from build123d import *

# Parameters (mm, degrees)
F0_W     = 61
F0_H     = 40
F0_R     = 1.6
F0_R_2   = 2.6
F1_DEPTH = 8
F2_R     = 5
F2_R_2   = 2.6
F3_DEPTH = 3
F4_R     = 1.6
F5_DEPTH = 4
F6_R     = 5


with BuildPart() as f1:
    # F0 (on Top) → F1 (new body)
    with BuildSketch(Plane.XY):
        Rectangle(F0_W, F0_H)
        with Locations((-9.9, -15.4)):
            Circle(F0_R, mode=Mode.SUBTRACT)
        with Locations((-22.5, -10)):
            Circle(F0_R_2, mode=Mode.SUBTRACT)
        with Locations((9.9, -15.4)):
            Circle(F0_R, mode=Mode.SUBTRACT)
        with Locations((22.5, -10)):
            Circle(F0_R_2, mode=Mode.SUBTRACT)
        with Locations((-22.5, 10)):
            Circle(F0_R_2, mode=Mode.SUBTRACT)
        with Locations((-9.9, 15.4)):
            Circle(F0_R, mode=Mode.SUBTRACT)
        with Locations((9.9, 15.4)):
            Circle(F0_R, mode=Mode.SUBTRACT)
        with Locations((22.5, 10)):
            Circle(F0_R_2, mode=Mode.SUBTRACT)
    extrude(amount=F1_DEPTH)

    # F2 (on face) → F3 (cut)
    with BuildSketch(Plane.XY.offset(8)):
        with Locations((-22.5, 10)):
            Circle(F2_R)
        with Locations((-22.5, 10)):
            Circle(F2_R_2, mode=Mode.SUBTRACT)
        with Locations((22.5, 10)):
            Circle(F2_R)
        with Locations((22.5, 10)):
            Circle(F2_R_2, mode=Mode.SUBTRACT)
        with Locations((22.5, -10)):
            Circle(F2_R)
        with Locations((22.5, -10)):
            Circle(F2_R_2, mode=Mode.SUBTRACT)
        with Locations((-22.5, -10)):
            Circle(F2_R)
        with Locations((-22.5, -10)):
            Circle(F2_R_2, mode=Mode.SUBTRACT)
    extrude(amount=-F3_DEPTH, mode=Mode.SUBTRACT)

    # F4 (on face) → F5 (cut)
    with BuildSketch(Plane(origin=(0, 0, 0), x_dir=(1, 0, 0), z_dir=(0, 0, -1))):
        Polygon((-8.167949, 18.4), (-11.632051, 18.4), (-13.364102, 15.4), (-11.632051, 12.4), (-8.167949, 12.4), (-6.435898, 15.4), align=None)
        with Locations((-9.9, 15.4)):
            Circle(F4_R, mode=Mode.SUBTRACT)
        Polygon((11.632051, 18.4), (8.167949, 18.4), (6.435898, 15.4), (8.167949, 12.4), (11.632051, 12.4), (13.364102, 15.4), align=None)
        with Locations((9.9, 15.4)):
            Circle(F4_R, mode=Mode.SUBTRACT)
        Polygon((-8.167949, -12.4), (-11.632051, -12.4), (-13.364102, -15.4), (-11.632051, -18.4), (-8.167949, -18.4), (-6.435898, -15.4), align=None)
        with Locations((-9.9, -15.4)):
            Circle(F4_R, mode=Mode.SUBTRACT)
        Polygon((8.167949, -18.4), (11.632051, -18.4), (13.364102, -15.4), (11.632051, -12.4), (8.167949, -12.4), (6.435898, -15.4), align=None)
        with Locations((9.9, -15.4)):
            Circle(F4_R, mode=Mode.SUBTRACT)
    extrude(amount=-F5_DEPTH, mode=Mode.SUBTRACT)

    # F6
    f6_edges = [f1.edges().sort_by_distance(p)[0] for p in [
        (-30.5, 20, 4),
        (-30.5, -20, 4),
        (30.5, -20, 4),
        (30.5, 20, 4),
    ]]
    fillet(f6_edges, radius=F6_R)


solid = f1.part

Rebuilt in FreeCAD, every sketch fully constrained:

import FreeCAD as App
import Part
import Sketcher

V = App.Vector
Q = App.Units.Quantity


def edges_at(feature, points):
    """Names of the edges that pass closest to the given points."""
    edges = feature.Shape.Edges
    near = lambda p: min(range(len(edges)), key=lambda i: edges[i].distToShape(Part.Vertex(*p))[0])
    return sorted({f"Edge{near(p) + 1}" for p in points})


def add_polygon(sketch, points):
    """Adds a closed chain of lines whose ends are joined by coincident constraints."""
    first, n = sketch.GeometryCount, len(points)
    for a, b in zip(points, points[1:] + points[:1]):
        sketch.addGeometry(Part.LineSegment(App.Vector(*a, 0), App.Vector(*b, 0)), False)
    for i in range(n):
        sketch.addConstraint(Sketcher.Constraint("Coincident", first + i, 2, first + (i + 1) % n, 1))

doc = App.newDocument("Part")
body = doc.addObject("PartDesign::Body", "Body")

# Sketch on XY plane
sketch1 = body.newObject("Sketcher::SketchObject", "Sketch")
sketch1.AttachmentSupport = (doc.getObject("XY_Plane"), [""])
sketch1.MapMode = "FlatFace"
add_polygon(sketch1, [(-30.5, 20), (-30.5, -20), (30.5, -20), (30.5, 20)])  # lines 0-3
sketch1.addGeometry(Part.Circle(V(-22.5, -10, 0), V(0, 0, 1), 2.6), False)  # 4
sketch1.addGeometry(Part.Circle(V(-9.9, -15.4, 0), V(0, 0, 1), 1.6), False)  # 5
sketch1.addGeometry(Part.Circle(V(9.9, -15.4, 0), V(0, 0, 1), 1.6), False)  # 6
sketch1.addGeometry(Part.Circle(V(22.5, -10, 0), V(0, 0, 1), 2.6), False)  # 7
sketch1.addGeometry(Part.Circle(V(-22.5, 10, 0), V(0, 0, 1), 2.6), False)  # 8
sketch1.addGeometry(Part.Circle(V(-9.9, 15.4, 0), V(0, 0, 1), 1.6), False)  # 9
sketch1.addGeometry(Part.Circle(V(9.9, 15.4, 0), V(0, 0, 1), 1.6), False)  # 10
sketch1.addGeometry(Part.Circle(V(22.5, 10, 0), V(0, 0, 1), 2.6), False)  # 11
sketch1.addConstraint(Sketcher.Constraint("Vertical", 0))
sketch1.addConstraint(Sketcher.Constraint("Horizontal", 1))
sketch1.addConstraint(Sketcher.Constraint("Vertical", 2))
sketch1.addConstraint(Sketcher.Constraint("Horizontal", 3))
sketch1.addConstraint(Sketcher.Constraint("Equal", 5, 6))
sketch1.addConstraint(Sketcher.Constraint("Equal", 4, 7))
sketch1.addConstraint(Sketcher.Constraint("Equal", 7, 8))
sketch1.addConstraint(Sketcher.Constraint("Equal", 6, 9))
sketch1.addConstraint(Sketcher.Constraint("Equal", 9, 10))
sketch1.addConstraint(Sketcher.Constraint("Equal", 8, 11))
sketch1.addConstraint(Sketcher.Constraint("Symmetric", 7, 3, 8, 3, -1, 1))
sketch1.addConstraint(Sketcher.Constraint("Symmetric", 6, 3, 9, 3, -1, 1))
sketch1.addConstraint(Sketcher.Constraint("Symmetric", 5, 3, 10, 3, -1, 1))
sketch1.addConstraint(Sketcher.Constraint("Symmetric", 4, 3, 11, 3, -1, 1))
sketch1.addConstraint(Sketcher.Constraint("Symmetric", 0, 2, 2, 2, -1, 1))
sketch1.addConstraint(Sketcher.Constraint("Symmetric", 5, 3, 6, 3, -2))
sketch1.addConstraint(Sketcher.Constraint("Symmetric", 4, 3, 7, 3, -2))
sketch1.addConstraint(Sketcher.Constraint("Diameter", 4, 5.2))
sketch1.addConstraint(Sketcher.Constraint("Diameter", 5, 3.2))
sketch1.addConstraint(Sketcher.Constraint("DistanceX", 1, 1, 1, 2, 61.0))
sketch1.addConstraint(Sketcher.Constraint("DistanceY", 0, 2, 0, 1, 40.0))
sketch1.addConstraint(Sketcher.Constraint("DistanceY", 4, 3, -1, 1, 10.0))
sketch1.addConstraint(Sketcher.Constraint("DistanceX", 4, 3, 7, 3, 45.0))
sketch1.addConstraint(Sketcher.Constraint("DistanceX", 5, 3, -1, 1, 9.9))
sketch1.addConstraint(Sketcher.Constraint("DistanceY", 5, 3, -1, 1, 15.4))
pad1 = body.newObject("PartDesign::Pad", "Pad")
pad1.Profile = sketch1
pad1.Length = 8

# Sketch on XY plane
sketch2 = body.newObject("Sketcher::SketchObject", "Sketch001")
sketch2.AttachmentSupport = (doc.getObject("XY_Plane"), [""])
sketch2.MapMode = "FlatFace"
sketch2.AttachmentOffset = App.Placement(V(0, 0, 8), App.Rotation())
sketch2.addGeometry(Part.Circle(V(-22.5, 10, 0), V(0, 0, 1), 5), False)
sketch2.addGeometry(Part.Circle(V(-22.5, 10, 0), V(0, 0, 1), 2.6), False)
sketch2.addGeometry(Part.Circle(V(22.5, 10, 0), V(0, 0, 1), 5), False)
sketch2.addGeometry(Part.Circle(V(22.5, 10, 0), V(0, 0, 1), 2.6), False)
sketch2.addGeometry(Part.Circle(V(22.5, -10, 0), V(0, 0, 1), 5), False)
sketch2.addGeometry(Part.Circle(V(22.5, -10, 0), V(0, 0, 1), 2.6), False)
sketch2.addGeometry(Part.Circle(V(-22.5, -10, 0), V(0, 0, 1), 5), False)
sketch2.addGeometry(Part.Circle(V(-22.5, -10, 0), V(0, 0, 1), 2.6), False)
sketch2.addConstraint(Sketcher.Constraint("Coincident", 1, 3, 0, 3))
sketch2.addConstraint(Sketcher.Constraint("Coincident", 3, 3, 2, 3))
sketch2.addConstraint(Sketcher.Constraint("Coincident", 5, 3, 4, 3))
sketch2.addConstraint(Sketcher.Constraint("Coincident", 7, 3, 6, 3))
sketch2.addConstraint(Sketcher.Constraint("Equal", 0, 2))
sketch2.addConstraint(Sketcher.Constraint("Equal", 1, 3))
sketch2.addConstraint(Sketcher.Constraint("Equal", 2, 4))
sketch2.addConstraint(Sketcher.Constraint("Equal", 3, 5))
sketch2.addConstraint(Sketcher.Constraint("Equal", 4, 6))
sketch2.addConstraint(Sketcher.Constraint("Equal", 5, 7))
sketch2.addConstraint(Sketcher.Constraint("Symmetric", 0, 3, 4, 3, -1, 1))
sketch2.addConstraint(Sketcher.Constraint("Symmetric", 2, 3, 6, 3, -1, 1))
sketch2.addConstraint(Sketcher.Constraint("Symmetric", 0, 3, 2, 3, -2))
sketch2.addConstraint(Sketcher.Constraint("Diameter", 0, 10.0))
sketch2.addConstraint(Sketcher.Constraint("Diameter", 1, 5.2))
sketch2.addConstraint(Sketcher.Constraint("DistanceY", -1, 1, 0, 3, 10.0))
sketch2.addConstraint(Sketcher.Constraint("DistanceX", 0, 3, 2, 3, 45.0))
pocket1 = body.newObject("PartDesign::Pocket", "Pocket")
pocket1.Profile = sketch2
pocket1.Length = 3

# Sketch on XY plane
sketch3 = body.newObject("Sketcher::SketchObject", "Sketch002")
sketch3.AttachmentSupport = (doc.getObject("XY_Plane"), [""])
sketch3.MapMode = "FlatFace"
add_polygon(sketch3, [(-8.2, -18.4), (-11.6, -18.4), (-13.4, -15.4), (-11.6, -12.4), (-8.2, -12.4), (-6.4, -15.4)])  # lines 0-5
sketch3.addGeometry(Part.Circle(V(-9.9, -15.4, 0), V(0, 0, 1), 1.6), False)  # 6
add_polygon(sketch3, [(11.6, -18.4), (8.2, -18.4), (6.4, -15.4), (8.2, -12.4), (11.6, -12.4), (13.4, -15.4)])  # lines 7-12
sketch3.addGeometry(Part.Circle(V(9.9, -15.4, 0), V(0, 0, 1), 1.6), False)  # 13
add_polygon(sketch3, [(-8.2, 12.4), (-11.6, 12.4), (-13.4, 15.4), (-11.6, 18.4), (-8.2, 18.4), (-6.4, 15.4)])  # lines 14-19
sketch3.addGeometry(Part.Circle(V(-9.9, 15.4, 0), V(0, 0, 1), 1.6), False)  # 20
add_polygon(sketch3, [(8.2, 18.4), (11.6, 18.4), (13.4, 15.4), (11.6, 12.4), (8.2, 12.4), (6.4, 15.4)])  # lines 21-26
sketch3.addGeometry(Part.Circle(V(9.9, 15.4, 0), V(0, 0, 1), 1.6), False)  # 27
sketch3.addConstraint(Sketcher.Constraint("Horizontal", 0))
sketch3.addConstraint(Sketcher.Constraint("Horizontal", 3))
sketch3.addConstraint(Sketcher.Constraint("Horizontal", 7))
sketch3.addConstraint(Sketcher.Constraint("Horizontal", 10))
sketch3.addConstraint(Sketcher.Constraint("Horizontal", 14))
sketch3.addConstraint(Sketcher.Constraint("Horizontal", 17))
sketch3.addConstraint(Sketcher.Constraint("Horizontal", 21))
sketch3.addConstraint(Sketcher.Constraint("Horizontal", 24))
sketch3.addConstraint(Sketcher.Constraint("Equal", 6, 13))
sketch3.addConstraint(Sketcher.Constraint("Equal", 13, 20))
sketch3.addConstraint(Sketcher.Constraint("Equal", 20, 27))
sketch3.addConstraint(Sketcher.Constraint("Symmetric", 13, 3, 20, 3, -1, 1))
sketch3.addConstraint(Sketcher.Constraint("Symmetric", 6, 3, 27, 3, -1, 1))
sketch3.addConstraint(Sketcher.Constraint("Symmetric", 10, 2, 14, 2, -1, 1))
sketch3.addConstraint(Sketcher.Constraint("Symmetric", 11, 2, 15, 2, -1, 1))
sketch3.addConstraint(Sketcher.Constraint("Symmetric", 12, 2, 16, 2, -1, 1))
sketch3.addConstraint(Sketcher.Constraint("Symmetric", 8, 2, 18, 2, -1, 1))
sketch3.addConstraint(Sketcher.Constraint("Symmetric", 0, 2, 21, 2, -1, 1))
sketch3.addConstraint(Sketcher.Constraint("Symmetric", 1, 2, 22, 2, -1, 1))
sketch3.addConstraint(Sketcher.Constraint("Symmetric", 2, 2, 23, 2, -1, 1))
sketch3.addConstraint(Sketcher.Constraint("Symmetric", 4, 2, 25, 2, -1, 1))
sketch3.addConstraint(Sketcher.Constraint("Symmetric", 6, 3, 13, 3, -2))
sketch3.addConstraint(Sketcher.Constraint("Symmetric", 5, 2, 7, 2, -2))
sketch3.addConstraint(Sketcher.Constraint("Symmetric", 4, 2, 8, 2, -2))
sketch3.addConstraint(Sketcher.Constraint("Symmetric", 3, 2, 9, 2, -2))
sketch3.addConstraint(Sketcher.Constraint("Symmetric", 1, 2, 11, 2, -2))
sketch3.addConstraint(Sketcher.Constraint("Parallel", 1, 4))
sketch3.addConstraint(Sketcher.Constraint("Parallel", 2, 5))
sketch3.addConstraint(Sketcher.Constraint("Parallel", 4, 8))
sketch3.addConstraint(Sketcher.Constraint("Parallel", 8, 11))
sketch3.addConstraint(Sketcher.Constraint("Parallel", 9, 12))
sketch3.addConstraint(Sketcher.Constraint("Parallel", 15, 18))
sketch3.addConstraint(Sketcher.Constraint("Parallel", 16, 19))
sketch3.addConstraint(Sketcher.Constraint("Parallel", 22, 25))
sketch3.addConstraint(Sketcher.Constraint("Parallel", 23, 26))
sketch3.addConstraint(Sketcher.Constraint("Horizontal", 13, 3, 1, 2))
sketch3.addConstraint(Sketcher.Constraint("Horizontal", 1, 2, 4, 2))
sketch3.addConstraint(Sketcher.Constraint("Vertical", 0, 2, 2, 2))
sketch3.addConstraint(Sketcher.Constraint("Diameter", 6, 3.2))
sketch3.addConstraint(Sketcher.Constraint("Angle", 1, Q("120.000003 deg")))
sketch3.addConstraint(Sketcher.Constraint("DistanceY", 0, 2, 6, 3, 3.0))
sketch3.addConstraint(Sketcher.Constraint("DistanceX", 6, 3, -1, 1, 9.9))
sketch3.addConstraint(Sketcher.Constraint("DistanceY", 6, 3, -1, 1, 15.4))
sketch3.addConstraint(Sketcher.Constraint("DistanceX", 17, 2, 21, 2, 19.8))
sketch3.addConstraint(Sketcher.Constraint("DistanceX", 5, 2, 7, 2, 16.335898))
pocket2 = body.newObject("PartDesign::Pocket", "Pocket001")
pocket2.Profile = sketch3
pocket2.Length = 4
pocket2.Reversed = True
doc.recompute()

fillet = body.newObject("PartDesign::Fillet", "Fillet")
fillet.Base = (pocket2, edges_at(pocket2, [
    (-30.5, 20, 4),
    (-30.5, -20, 4),
    (30.5, -20, 4),
    (30.5, 20, 4),
]))
fillet.Radius = 5

doc.recompute()
